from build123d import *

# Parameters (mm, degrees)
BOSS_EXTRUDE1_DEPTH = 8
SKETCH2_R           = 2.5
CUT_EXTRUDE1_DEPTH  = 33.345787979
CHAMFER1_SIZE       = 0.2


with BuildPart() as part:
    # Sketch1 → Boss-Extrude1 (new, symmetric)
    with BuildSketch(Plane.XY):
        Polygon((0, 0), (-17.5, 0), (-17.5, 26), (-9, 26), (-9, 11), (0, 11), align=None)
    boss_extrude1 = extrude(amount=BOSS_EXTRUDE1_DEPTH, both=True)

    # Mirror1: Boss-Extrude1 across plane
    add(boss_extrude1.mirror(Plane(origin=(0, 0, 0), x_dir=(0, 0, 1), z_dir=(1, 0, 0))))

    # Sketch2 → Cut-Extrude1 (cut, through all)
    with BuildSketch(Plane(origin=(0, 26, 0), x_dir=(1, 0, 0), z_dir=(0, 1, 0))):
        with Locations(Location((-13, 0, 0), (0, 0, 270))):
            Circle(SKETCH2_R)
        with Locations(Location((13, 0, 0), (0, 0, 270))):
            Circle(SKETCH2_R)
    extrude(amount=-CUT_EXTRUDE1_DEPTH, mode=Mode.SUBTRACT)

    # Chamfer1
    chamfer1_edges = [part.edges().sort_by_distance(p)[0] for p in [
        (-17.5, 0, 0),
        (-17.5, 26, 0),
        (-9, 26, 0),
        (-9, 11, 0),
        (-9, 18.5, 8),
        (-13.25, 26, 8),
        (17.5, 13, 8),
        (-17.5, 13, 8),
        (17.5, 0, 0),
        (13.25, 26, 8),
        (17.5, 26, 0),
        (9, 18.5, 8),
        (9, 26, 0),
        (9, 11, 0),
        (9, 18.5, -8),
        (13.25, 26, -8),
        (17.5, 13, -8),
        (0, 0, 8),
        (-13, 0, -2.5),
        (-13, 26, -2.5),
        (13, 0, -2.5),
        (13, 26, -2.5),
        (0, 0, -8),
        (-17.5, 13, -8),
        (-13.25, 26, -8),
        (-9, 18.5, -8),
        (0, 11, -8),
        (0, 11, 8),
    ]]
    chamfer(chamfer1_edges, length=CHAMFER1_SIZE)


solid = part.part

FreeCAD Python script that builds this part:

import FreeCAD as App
import Part
import Sketcher

V = App.Vector

doc = App.newDocument("Part")
body = doc.addObject("PartDesign::Body", "Body")

# Sketch on XY plane
sketch1 = body.newObject("Sketcher::SketchObject", "Sketch")
sketch1.AttachmentSupport = (doc.getObject("XY_Plane"), [""])
sketch1.MapMode = "FlatFace"
sketch1.addGeometry([
    Part.LineSegment(V(-17.5, 0, 0), V(0, 0, 0)),  # 0
    Part.LineSegment(V(0, 0, 0), V(0, 11, 0)),  # 1
    Part.LineSegment(V(0, 11, 0), V(-9, 11, 0)),  # 2
    Part.LineSegment(V(-9, 11, 0), V(-9, 26, 0)),  # 3
    Part.LineSegment(V(-9, 26, 0), V(-17.5, 26, 0)),  # 4
    Part.LineSegment(V(-17.5, 26, 0), V(-17.5, 0, 0)),  # 5
], False)
sketch1.addConstraint([
    Sketcher.Constraint("Coincident", 0, 2, 1, 1),
    Sketcher.Constraint("Coincident", 1, 2, 2, 1),
    Sketcher.Constraint("Coincident", 2, 2, 3, 1),
    Sketcher.Constraint("Coincident", 3, 2, 4, 1),
    Sketcher.Constraint("Coincident", 4, 2, 5, 1),
    Sketcher.Constraint("Coincident", 5, 2, 0, 1),
    Sketcher.Constraint("Horizontal", 0),
    Sketcher.Constraint("Vertical", 1),
    Sketcher.Constraint("Horizontal", 2),
    Sketcher.Constraint("Vertical", 3),
    Sketcher.Constraint("Horizontal", 4),
    Sketcher.Constraint("Vertical", 5),
    Sketcher.Constraint("Coincident", 0, 2, -1, 1),
    Sketcher.Constraint("DistanceX", 2, 2, 2, 1, 9.0),
    Sketcher.Constraint("DistanceY", 1, 1, 1, 2, 11.0),
    Sketcher.Constraint("DistanceY", 3, 1, 3, 2, 15.0),
    Sketcher.Constraint("DistanceX", 0, 1, 0, 2, 17.5),
])
pad1 = body.newObject("PartDesign::Pad", "Pad")
pad1.Profile = sketch1
pad1.Length = 16
pad1.Midplane = True
doc.recompute()

mirrored = body.newObject("PartDesign::Mirrored", "Mirrored")
mirrored.Originals = [pad1]
mirrored.MirrorPlane = (doc.getObject("YZ_Plane"), [""])
body.Tip = mirrored

# Sketch on XZ plane
sketch2 = body.newObject("Sketcher::SketchObject", "Sketch001")
sketch2.AttachmentSupport = (doc.getObject("XZ_Plane"), [""])
sketch2.MapMode = "FlatFace"
sketch2.AttachmentOffset = App.Placement(V(0, 0, -26), App.Rotation())
sketch2.addGeometry([
    Part.Circle(V(-13, 0, 0), V(0, 0, 1), 2.5),
    Part.Circle(V(13, 0, 0), V(0, 0, 1), 2.5),
], False)
sketch2.addConstraint([
    Sketcher.Constraint("Equal", 0, 1),
    Sketcher.Constraint("Symmetric", 0, 3, 1, 3, -1, 1),
    Sketcher.Constraint("PointOnObject", 0, 3, -1),
    Sketcher.Constraint("Diameter", 0, 5.0),
    Sketcher.Constraint("DistanceX", 0, 3, -1, 1, 13.0),
])
pocket1 = body.newObject("PartDesign::Pocket", "Pocket")
pocket1.Profile = sketch2
pocket1.Type = "ThroughAll"
pocket1.Reversed = True
doc.recompute()

chamfer = body.newObject("PartDesign::Chamfer", "Chamfer")
chamfer.Base = (pocket1, ["Edge1"])
chamfer.UseAllEdges = True
chamfer.Size = 0.2

doc.recompute()
